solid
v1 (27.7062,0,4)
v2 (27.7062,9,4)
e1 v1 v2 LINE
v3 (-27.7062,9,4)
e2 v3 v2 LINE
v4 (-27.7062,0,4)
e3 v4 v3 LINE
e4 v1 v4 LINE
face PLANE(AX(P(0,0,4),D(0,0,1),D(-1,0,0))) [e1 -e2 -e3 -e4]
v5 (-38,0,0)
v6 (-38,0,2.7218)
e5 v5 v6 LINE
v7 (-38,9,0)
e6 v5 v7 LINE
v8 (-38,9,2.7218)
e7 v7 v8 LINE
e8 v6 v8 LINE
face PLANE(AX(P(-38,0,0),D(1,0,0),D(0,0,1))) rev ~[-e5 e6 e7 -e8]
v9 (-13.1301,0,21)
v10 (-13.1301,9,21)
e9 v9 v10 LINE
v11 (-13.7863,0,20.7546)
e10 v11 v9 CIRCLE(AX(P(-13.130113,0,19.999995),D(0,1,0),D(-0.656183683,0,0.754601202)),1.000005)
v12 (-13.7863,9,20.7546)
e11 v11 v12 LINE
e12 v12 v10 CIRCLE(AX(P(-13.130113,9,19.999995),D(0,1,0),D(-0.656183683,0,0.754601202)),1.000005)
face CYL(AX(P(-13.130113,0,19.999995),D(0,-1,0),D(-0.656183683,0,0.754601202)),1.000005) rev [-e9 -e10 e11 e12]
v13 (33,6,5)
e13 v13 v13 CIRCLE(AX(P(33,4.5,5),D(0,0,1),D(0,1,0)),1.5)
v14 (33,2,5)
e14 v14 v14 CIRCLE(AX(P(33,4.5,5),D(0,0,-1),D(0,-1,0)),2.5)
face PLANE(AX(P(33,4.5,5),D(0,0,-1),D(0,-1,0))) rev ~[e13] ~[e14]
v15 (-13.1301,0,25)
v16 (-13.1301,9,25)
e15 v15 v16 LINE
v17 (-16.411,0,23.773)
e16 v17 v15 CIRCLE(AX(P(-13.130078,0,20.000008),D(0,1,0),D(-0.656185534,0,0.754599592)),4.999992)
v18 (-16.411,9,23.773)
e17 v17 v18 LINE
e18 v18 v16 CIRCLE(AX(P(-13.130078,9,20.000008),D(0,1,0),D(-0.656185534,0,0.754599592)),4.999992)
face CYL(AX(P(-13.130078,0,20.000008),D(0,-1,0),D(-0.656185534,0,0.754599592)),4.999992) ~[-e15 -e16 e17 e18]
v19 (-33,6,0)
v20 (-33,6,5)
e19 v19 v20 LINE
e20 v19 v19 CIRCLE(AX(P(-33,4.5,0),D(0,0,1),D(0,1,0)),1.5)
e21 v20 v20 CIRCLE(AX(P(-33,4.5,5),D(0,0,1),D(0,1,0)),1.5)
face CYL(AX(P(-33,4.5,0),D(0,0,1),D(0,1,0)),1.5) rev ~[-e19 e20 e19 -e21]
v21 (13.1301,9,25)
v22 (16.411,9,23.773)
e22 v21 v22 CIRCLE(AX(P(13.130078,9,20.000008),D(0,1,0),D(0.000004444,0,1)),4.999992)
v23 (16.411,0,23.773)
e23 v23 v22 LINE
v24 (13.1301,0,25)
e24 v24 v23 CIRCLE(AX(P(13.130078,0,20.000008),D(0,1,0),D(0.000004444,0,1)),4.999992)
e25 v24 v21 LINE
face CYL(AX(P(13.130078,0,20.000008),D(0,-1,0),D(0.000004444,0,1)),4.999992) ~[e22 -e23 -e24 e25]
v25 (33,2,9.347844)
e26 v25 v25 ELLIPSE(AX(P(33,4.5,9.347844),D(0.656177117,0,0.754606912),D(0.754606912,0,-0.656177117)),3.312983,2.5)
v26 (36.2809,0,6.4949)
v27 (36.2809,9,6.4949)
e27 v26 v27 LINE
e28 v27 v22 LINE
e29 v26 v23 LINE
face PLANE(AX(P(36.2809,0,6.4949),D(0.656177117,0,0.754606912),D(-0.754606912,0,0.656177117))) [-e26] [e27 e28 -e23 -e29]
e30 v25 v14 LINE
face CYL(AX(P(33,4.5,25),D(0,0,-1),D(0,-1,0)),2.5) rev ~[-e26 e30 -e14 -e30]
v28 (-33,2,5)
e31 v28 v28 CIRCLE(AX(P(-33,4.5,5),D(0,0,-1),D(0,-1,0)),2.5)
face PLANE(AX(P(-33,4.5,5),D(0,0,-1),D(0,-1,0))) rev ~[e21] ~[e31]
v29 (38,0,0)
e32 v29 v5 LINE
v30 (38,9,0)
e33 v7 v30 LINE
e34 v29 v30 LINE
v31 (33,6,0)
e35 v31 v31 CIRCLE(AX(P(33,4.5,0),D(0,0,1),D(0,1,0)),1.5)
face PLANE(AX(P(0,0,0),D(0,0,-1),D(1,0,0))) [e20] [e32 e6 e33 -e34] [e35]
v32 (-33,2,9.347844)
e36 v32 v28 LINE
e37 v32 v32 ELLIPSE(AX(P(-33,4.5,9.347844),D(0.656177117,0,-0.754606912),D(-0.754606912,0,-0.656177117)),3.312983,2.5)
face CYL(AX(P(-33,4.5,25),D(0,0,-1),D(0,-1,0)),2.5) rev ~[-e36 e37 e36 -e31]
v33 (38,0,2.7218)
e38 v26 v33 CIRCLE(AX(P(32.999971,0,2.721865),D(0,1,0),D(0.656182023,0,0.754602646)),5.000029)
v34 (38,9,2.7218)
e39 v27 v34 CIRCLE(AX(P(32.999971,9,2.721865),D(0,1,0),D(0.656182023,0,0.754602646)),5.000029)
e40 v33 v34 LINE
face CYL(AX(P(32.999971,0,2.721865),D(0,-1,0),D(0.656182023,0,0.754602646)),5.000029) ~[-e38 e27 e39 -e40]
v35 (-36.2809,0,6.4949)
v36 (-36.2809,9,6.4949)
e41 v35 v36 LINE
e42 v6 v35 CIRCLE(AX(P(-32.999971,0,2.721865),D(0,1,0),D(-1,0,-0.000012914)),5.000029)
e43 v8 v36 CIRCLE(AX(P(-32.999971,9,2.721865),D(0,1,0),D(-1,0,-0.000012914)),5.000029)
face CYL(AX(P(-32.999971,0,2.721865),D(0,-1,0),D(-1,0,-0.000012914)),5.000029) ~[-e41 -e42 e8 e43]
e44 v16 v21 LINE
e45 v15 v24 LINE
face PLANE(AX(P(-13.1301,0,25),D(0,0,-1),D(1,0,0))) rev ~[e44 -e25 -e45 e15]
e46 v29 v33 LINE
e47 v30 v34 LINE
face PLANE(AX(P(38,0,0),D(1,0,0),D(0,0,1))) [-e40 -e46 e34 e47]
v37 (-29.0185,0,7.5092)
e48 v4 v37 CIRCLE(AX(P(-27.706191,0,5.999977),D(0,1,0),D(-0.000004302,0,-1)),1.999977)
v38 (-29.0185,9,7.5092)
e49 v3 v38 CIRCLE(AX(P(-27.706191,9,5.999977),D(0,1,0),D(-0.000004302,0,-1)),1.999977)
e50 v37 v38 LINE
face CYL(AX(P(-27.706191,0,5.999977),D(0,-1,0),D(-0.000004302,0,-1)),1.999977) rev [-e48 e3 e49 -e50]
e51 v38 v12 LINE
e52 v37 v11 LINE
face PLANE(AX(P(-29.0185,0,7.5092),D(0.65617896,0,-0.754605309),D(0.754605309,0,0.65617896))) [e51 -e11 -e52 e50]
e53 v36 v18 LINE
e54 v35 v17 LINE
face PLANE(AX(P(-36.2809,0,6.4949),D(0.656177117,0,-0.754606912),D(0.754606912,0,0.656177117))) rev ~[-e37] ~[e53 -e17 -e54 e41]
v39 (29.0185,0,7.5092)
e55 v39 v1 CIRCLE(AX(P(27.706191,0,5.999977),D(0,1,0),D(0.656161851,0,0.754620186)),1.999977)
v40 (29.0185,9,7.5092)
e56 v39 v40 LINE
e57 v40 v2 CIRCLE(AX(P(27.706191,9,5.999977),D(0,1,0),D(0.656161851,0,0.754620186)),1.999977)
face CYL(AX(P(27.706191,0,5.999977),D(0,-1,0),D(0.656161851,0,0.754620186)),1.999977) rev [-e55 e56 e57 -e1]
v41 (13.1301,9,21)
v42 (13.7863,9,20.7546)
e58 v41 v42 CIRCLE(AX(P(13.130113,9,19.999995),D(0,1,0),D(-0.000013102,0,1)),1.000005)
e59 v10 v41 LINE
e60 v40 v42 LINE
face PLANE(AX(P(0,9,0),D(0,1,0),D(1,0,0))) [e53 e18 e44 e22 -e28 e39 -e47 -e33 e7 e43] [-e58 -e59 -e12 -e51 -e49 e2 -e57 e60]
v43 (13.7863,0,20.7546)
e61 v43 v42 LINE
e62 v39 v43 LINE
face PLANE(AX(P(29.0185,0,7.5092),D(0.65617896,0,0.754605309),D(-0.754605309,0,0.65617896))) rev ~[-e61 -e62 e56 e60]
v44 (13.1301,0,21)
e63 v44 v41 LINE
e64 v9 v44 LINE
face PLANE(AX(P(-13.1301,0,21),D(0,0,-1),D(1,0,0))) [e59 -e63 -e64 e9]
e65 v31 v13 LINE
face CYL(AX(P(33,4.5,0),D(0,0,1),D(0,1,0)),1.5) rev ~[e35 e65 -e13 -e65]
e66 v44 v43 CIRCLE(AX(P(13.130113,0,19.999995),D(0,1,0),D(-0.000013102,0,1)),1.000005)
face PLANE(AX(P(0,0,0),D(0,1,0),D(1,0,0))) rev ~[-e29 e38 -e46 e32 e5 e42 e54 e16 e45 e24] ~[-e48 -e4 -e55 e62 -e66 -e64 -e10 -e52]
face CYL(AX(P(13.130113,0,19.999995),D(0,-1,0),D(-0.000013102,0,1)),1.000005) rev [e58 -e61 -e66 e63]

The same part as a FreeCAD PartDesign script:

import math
import FreeCAD as App
import Part
import Sketcher
Q = App.Units.Quantity

doc = App.newDocument("Part")
body = doc.addObject("PartDesign::Body", "Body")

sketch1 = doc.addObject("Sketcher::SketchObject", "Sketch")
body.addObject(sketch1)
sketch1.AttachmentSupport = (doc.XZ_Plane, [""])
sketch1.MapMode = "FlatFace"
sketch1.addGeometry([
    Part.LineSegment(App.Vector(38, 0, 0), App.Vector(-38, 0, 0)),
    Part.LineSegment(App.Vector(-38, 0, 0), App.Vector(-38, 2.7218, 0)),
    Part.ArcOfCircle(Part.Circle(App.Vector(-33, 2.7218, 0), App.Vector(0, 0, 1), 5), math.radians(131.008598), math.radians(180)),
    Part.LineSegment(App.Vector(-36.2809, 6.4949, 0), App.Vector(-16.411, 23.773, 0)),
    Part.ArcOfCircle(Part.Circle(App.Vector(-13.1301, 20, 0), App.Vector(0, 0, 1), 4.999983), math.radians(90), math.radians(131.00935)),
    Part.LineSegment(App.Vector(-13.1301, 25, 0), App.Vector(13.1301, 25, 0)),
    Part.ArcOfCircle(Part.Circle(App.Vector(13.1301, 20, 0), App.Vector(0, 0, 1), 5), math.radians(48.99065), math.radians(90)),
    Part.LineSegment(App.Vector(16.411, 23.773, 0), App.Vector(36.2809, 6.4949, 0)),
    Part.ArcOfCircle(Part.Circle(App.Vector(33, 2.7218, 0), App.Vector(0, 0, 1), 5.000059), math.radians(0), math.radians(48.991402)),
    Part.LineSegment(App.Vector(38, 2.7218, 0), App.Vector(38, 0, 0)),
    Part.LineSegment(App.Vector(-27.7062, 4, 0), App.Vector(27.7062, 4, 0)),
    Part.ArcOfCircle(Part.Circle(App.Vector(27.7062, 6, 0), App.Vector(0, 0, 1), 1.999954), math.radians(-90), math.radians(48.991947)),
    Part.LineSegment(App.Vector(29.0185, 7.5092, 0), App.Vector(13.7863, 20.7546, 0)),
    Part.ArcOfCircle(Part.Circle(App.Vector(13.1301, 20, 0), App.Vector(0, 0, 1), 1), math.radians(48.989785), math.radians(90)),
    Part.LineSegment(App.Vector(13.1301, 21, 0), App.Vector(-13.1301, 21, 0)),
    Part.ArcOfCircle(Part.Circle(App.Vector(-13.1301, 20, 0), App.Vector(0, 0, 1), 1.00001), math.radians(90), math.radians(131.010215)),
    Part.LineSegment(App.Vector(-13.7863, 20.7546, 0), App.Vector(-29.0185, 7.5092, 0)),
    Part.ArcOfCircle(Part.Circle(App.Vector(-27.7062, 6, 0), App.Vector(0, 0, 1), 2), math.radians(131.008053), math.radians(270)),
], False)
sketch1.addConstraint([
    Sketcher.Constraint("Coincident", 0, 2, 1, 1),
    Sketcher.Constraint("Tangent", 1, 2, 2, 2),
    Sketcher.Constraint("Tangent", 2, 1, 3, 1),
    Sketcher.Constraint("Tangent", 3, 2, 4, 2),
    Sketcher.Constraint("Tangent", 4, 1, 5, 1),
    Sketcher.Constraint("Tangent", 5, 2, 6, 2),
    Sketcher.Constraint("Tangent", 6, 1, 7, 1),
    Sketcher.Constraint("Tangent", 7, 2, 8, 2),
    Sketcher.Constraint("Tangent", 8, 1, 9, 1),
    Sketcher.Constraint("Coincident", 9, 2, 0, 1),
    Sketcher.Constraint("Tangent", 10, 2, 11, 1),
    Sketcher.Constraint("Tangent", 11, 2, 12, 1),
    Sketcher.Constraint("Tangent", 12, 2, 13, 1),
    Sketcher.Constraint("Tangent", 13, 2, 14, 1),
    Sketcher.Constraint("Tangent", 14, 2, 15, 1),
    Sketcher.Constraint("Tangent", 15, 2, 16, 1),
    Sketcher.Constraint("Tangent", 16, 2, 17, 1),
    Sketcher.Constraint("Tangent", 17, 2, 10, 1),
    Sketcher.Constraint("Horizontal", 0),
    Sketcher.Constraint("Vertical", 1),
    Sketcher.Constraint("Horizontal", 5),
    Sketcher.Constraint("Vertical", 9),
    Sketcher.Constraint("Horizontal", 10),
    Sketcher.Constraint("Horizontal", 14),
    Sketcher.Constraint("Coincident", 13, 3, 6, 3),
    Sketcher.Constraint("Coincident", 15, 3, 4, 3),
    Sketcher.Constraint("Equal", 2, 4),
    Sketcher.Constraint("Equal", 4, 6),
    Sketcher.Constraint("Equal", 6, 8),
    Sketcher.Constraint("Equal", 11, 17),
    Sketcher.Constraint("Symmetric", 0, 2, 9, 2, -1, 1),
    Sketcher.Constraint("Symmetric", 3, 2, 6, 1, -2),
    Sketcher.Constraint("Parallel", 7, 12),
    Sketcher.Constraint("Parallel", 3, 16),
    Sketcher.Constraint("Radius", 2, Q("5 mm")),
    Sketcher.Constraint("Radius", 11, Q("2 mm")),
    Sketcher.Constraint("Radius", 13, Q("1 mm")),
    Sketcher.Constraint("DistanceX", 0, 2, 0, 1, Q("76 mm")),
    Sketcher.Constraint("DistanceY", -1, 1, 4, 3, Q("20 mm")),
    Sketcher.Constraint("DistanceY", -1, 1, 11, 3, Q("6 mm")),
    Sketcher.Constraint("Angle", 3, Q("41.009 deg")),
    Sketcher.Constraint("DistanceX", 4, 3, -1, 1, Q("13.13 mm")),
])
pad1 = doc.addObject("PartDesign::Pad", "Pad")
body.addObject(pad1)
pad1.Profile = sketch1
pad1.Length = 9
pad1.Reversed = True

sketch2 = doc.addObject("Sketcher::SketchObject", "Sketch001")
body.addObject(sketch2)
sketch2.AttachmentSupport = (doc.XY_Plane, [""])
sketch2.MapMode = "FlatFace"
sketch2.addGeometry([
    Part.Circle(App.Vector(33, 4.5, 0), App.Vector(0, 0, 1), 1.5),
    Part.Circle(App.Vector(-33, 4.5, 0), App.Vector(0, 0, 1), 1.5),
], False)
sketch2.addConstraint([
    Sketcher.Constraint("Equal", 0, 1),
    Sketcher.Constraint("Symmetric", 0, 3, 1, 3, -2),
    Sketcher.Constraint("Diameter", 0, Q("3 mm")),
    Sketcher.Constraint("DistanceX", -1, 1, 0, 3, Q("33 mm")),
    Sketcher.Constraint("DistanceY", -1, 1, 0, 3, Q("4.5 mm")),
])
doc.recompute()
hole = doc.addObject("PartDesign::Hole", "Hole")
body.addObject(hole)
hole.Profile = sketch2
hole.ThreadType = "None"
hole.Diameter = 3
hole.DepthType = "Dimension"
hole.Depth = 122
hole.DrillPoint = "Flat"
hole.Reversed = True

sketch3 = doc.addObject("Sketcher::SketchObject", "Sketch002")
body.addObject(sketch3)
sketch3.AttachmentSupport = (doc.XY_Plane, [""])
sketch3.MapMode = "FlatFace"
sketch3.AttachmentOffset = App.Placement(App.Vector(0, 0, 25), App.Rotation())
sketch3.addGeometry([
    Part.Circle(App.Vector(33, 4.5, 0), App.Vector(0, 0, 1), 2.5),
    Part.Circle(App.Vector(-33, 4.5, 0), App.Vector(0, 0, 1), 2.5),
], False)
sketch3.addConstraint([
    Sketcher.Constraint("Equal", 0, 1),
    Sketcher.Constraint("Symmetric", 0, 3, 1, 3, -2),
    Sketcher.Constraint("Diameter", 0, Q("5 mm")),
    Sketcher.Constraint("DistanceX", -1, 1, 0, 3, Q("33 mm")),
    Sketcher.Constraint("DistanceY", -1, 1, 0, 3, Q("4.5 mm")),
])
doc.recompute()
hole2 = doc.addObject("PartDesign::Hole", "Hole001")
body.addObject(hole2)
hole2.Profile = sketch3
hole2.ThreadType = "None"
hole2.Diameter = 5
hole2.DepthType = "Dimension"
hole2.Depth = 20
hole2.DrillPoint = "Flat"

doc.recompute()
